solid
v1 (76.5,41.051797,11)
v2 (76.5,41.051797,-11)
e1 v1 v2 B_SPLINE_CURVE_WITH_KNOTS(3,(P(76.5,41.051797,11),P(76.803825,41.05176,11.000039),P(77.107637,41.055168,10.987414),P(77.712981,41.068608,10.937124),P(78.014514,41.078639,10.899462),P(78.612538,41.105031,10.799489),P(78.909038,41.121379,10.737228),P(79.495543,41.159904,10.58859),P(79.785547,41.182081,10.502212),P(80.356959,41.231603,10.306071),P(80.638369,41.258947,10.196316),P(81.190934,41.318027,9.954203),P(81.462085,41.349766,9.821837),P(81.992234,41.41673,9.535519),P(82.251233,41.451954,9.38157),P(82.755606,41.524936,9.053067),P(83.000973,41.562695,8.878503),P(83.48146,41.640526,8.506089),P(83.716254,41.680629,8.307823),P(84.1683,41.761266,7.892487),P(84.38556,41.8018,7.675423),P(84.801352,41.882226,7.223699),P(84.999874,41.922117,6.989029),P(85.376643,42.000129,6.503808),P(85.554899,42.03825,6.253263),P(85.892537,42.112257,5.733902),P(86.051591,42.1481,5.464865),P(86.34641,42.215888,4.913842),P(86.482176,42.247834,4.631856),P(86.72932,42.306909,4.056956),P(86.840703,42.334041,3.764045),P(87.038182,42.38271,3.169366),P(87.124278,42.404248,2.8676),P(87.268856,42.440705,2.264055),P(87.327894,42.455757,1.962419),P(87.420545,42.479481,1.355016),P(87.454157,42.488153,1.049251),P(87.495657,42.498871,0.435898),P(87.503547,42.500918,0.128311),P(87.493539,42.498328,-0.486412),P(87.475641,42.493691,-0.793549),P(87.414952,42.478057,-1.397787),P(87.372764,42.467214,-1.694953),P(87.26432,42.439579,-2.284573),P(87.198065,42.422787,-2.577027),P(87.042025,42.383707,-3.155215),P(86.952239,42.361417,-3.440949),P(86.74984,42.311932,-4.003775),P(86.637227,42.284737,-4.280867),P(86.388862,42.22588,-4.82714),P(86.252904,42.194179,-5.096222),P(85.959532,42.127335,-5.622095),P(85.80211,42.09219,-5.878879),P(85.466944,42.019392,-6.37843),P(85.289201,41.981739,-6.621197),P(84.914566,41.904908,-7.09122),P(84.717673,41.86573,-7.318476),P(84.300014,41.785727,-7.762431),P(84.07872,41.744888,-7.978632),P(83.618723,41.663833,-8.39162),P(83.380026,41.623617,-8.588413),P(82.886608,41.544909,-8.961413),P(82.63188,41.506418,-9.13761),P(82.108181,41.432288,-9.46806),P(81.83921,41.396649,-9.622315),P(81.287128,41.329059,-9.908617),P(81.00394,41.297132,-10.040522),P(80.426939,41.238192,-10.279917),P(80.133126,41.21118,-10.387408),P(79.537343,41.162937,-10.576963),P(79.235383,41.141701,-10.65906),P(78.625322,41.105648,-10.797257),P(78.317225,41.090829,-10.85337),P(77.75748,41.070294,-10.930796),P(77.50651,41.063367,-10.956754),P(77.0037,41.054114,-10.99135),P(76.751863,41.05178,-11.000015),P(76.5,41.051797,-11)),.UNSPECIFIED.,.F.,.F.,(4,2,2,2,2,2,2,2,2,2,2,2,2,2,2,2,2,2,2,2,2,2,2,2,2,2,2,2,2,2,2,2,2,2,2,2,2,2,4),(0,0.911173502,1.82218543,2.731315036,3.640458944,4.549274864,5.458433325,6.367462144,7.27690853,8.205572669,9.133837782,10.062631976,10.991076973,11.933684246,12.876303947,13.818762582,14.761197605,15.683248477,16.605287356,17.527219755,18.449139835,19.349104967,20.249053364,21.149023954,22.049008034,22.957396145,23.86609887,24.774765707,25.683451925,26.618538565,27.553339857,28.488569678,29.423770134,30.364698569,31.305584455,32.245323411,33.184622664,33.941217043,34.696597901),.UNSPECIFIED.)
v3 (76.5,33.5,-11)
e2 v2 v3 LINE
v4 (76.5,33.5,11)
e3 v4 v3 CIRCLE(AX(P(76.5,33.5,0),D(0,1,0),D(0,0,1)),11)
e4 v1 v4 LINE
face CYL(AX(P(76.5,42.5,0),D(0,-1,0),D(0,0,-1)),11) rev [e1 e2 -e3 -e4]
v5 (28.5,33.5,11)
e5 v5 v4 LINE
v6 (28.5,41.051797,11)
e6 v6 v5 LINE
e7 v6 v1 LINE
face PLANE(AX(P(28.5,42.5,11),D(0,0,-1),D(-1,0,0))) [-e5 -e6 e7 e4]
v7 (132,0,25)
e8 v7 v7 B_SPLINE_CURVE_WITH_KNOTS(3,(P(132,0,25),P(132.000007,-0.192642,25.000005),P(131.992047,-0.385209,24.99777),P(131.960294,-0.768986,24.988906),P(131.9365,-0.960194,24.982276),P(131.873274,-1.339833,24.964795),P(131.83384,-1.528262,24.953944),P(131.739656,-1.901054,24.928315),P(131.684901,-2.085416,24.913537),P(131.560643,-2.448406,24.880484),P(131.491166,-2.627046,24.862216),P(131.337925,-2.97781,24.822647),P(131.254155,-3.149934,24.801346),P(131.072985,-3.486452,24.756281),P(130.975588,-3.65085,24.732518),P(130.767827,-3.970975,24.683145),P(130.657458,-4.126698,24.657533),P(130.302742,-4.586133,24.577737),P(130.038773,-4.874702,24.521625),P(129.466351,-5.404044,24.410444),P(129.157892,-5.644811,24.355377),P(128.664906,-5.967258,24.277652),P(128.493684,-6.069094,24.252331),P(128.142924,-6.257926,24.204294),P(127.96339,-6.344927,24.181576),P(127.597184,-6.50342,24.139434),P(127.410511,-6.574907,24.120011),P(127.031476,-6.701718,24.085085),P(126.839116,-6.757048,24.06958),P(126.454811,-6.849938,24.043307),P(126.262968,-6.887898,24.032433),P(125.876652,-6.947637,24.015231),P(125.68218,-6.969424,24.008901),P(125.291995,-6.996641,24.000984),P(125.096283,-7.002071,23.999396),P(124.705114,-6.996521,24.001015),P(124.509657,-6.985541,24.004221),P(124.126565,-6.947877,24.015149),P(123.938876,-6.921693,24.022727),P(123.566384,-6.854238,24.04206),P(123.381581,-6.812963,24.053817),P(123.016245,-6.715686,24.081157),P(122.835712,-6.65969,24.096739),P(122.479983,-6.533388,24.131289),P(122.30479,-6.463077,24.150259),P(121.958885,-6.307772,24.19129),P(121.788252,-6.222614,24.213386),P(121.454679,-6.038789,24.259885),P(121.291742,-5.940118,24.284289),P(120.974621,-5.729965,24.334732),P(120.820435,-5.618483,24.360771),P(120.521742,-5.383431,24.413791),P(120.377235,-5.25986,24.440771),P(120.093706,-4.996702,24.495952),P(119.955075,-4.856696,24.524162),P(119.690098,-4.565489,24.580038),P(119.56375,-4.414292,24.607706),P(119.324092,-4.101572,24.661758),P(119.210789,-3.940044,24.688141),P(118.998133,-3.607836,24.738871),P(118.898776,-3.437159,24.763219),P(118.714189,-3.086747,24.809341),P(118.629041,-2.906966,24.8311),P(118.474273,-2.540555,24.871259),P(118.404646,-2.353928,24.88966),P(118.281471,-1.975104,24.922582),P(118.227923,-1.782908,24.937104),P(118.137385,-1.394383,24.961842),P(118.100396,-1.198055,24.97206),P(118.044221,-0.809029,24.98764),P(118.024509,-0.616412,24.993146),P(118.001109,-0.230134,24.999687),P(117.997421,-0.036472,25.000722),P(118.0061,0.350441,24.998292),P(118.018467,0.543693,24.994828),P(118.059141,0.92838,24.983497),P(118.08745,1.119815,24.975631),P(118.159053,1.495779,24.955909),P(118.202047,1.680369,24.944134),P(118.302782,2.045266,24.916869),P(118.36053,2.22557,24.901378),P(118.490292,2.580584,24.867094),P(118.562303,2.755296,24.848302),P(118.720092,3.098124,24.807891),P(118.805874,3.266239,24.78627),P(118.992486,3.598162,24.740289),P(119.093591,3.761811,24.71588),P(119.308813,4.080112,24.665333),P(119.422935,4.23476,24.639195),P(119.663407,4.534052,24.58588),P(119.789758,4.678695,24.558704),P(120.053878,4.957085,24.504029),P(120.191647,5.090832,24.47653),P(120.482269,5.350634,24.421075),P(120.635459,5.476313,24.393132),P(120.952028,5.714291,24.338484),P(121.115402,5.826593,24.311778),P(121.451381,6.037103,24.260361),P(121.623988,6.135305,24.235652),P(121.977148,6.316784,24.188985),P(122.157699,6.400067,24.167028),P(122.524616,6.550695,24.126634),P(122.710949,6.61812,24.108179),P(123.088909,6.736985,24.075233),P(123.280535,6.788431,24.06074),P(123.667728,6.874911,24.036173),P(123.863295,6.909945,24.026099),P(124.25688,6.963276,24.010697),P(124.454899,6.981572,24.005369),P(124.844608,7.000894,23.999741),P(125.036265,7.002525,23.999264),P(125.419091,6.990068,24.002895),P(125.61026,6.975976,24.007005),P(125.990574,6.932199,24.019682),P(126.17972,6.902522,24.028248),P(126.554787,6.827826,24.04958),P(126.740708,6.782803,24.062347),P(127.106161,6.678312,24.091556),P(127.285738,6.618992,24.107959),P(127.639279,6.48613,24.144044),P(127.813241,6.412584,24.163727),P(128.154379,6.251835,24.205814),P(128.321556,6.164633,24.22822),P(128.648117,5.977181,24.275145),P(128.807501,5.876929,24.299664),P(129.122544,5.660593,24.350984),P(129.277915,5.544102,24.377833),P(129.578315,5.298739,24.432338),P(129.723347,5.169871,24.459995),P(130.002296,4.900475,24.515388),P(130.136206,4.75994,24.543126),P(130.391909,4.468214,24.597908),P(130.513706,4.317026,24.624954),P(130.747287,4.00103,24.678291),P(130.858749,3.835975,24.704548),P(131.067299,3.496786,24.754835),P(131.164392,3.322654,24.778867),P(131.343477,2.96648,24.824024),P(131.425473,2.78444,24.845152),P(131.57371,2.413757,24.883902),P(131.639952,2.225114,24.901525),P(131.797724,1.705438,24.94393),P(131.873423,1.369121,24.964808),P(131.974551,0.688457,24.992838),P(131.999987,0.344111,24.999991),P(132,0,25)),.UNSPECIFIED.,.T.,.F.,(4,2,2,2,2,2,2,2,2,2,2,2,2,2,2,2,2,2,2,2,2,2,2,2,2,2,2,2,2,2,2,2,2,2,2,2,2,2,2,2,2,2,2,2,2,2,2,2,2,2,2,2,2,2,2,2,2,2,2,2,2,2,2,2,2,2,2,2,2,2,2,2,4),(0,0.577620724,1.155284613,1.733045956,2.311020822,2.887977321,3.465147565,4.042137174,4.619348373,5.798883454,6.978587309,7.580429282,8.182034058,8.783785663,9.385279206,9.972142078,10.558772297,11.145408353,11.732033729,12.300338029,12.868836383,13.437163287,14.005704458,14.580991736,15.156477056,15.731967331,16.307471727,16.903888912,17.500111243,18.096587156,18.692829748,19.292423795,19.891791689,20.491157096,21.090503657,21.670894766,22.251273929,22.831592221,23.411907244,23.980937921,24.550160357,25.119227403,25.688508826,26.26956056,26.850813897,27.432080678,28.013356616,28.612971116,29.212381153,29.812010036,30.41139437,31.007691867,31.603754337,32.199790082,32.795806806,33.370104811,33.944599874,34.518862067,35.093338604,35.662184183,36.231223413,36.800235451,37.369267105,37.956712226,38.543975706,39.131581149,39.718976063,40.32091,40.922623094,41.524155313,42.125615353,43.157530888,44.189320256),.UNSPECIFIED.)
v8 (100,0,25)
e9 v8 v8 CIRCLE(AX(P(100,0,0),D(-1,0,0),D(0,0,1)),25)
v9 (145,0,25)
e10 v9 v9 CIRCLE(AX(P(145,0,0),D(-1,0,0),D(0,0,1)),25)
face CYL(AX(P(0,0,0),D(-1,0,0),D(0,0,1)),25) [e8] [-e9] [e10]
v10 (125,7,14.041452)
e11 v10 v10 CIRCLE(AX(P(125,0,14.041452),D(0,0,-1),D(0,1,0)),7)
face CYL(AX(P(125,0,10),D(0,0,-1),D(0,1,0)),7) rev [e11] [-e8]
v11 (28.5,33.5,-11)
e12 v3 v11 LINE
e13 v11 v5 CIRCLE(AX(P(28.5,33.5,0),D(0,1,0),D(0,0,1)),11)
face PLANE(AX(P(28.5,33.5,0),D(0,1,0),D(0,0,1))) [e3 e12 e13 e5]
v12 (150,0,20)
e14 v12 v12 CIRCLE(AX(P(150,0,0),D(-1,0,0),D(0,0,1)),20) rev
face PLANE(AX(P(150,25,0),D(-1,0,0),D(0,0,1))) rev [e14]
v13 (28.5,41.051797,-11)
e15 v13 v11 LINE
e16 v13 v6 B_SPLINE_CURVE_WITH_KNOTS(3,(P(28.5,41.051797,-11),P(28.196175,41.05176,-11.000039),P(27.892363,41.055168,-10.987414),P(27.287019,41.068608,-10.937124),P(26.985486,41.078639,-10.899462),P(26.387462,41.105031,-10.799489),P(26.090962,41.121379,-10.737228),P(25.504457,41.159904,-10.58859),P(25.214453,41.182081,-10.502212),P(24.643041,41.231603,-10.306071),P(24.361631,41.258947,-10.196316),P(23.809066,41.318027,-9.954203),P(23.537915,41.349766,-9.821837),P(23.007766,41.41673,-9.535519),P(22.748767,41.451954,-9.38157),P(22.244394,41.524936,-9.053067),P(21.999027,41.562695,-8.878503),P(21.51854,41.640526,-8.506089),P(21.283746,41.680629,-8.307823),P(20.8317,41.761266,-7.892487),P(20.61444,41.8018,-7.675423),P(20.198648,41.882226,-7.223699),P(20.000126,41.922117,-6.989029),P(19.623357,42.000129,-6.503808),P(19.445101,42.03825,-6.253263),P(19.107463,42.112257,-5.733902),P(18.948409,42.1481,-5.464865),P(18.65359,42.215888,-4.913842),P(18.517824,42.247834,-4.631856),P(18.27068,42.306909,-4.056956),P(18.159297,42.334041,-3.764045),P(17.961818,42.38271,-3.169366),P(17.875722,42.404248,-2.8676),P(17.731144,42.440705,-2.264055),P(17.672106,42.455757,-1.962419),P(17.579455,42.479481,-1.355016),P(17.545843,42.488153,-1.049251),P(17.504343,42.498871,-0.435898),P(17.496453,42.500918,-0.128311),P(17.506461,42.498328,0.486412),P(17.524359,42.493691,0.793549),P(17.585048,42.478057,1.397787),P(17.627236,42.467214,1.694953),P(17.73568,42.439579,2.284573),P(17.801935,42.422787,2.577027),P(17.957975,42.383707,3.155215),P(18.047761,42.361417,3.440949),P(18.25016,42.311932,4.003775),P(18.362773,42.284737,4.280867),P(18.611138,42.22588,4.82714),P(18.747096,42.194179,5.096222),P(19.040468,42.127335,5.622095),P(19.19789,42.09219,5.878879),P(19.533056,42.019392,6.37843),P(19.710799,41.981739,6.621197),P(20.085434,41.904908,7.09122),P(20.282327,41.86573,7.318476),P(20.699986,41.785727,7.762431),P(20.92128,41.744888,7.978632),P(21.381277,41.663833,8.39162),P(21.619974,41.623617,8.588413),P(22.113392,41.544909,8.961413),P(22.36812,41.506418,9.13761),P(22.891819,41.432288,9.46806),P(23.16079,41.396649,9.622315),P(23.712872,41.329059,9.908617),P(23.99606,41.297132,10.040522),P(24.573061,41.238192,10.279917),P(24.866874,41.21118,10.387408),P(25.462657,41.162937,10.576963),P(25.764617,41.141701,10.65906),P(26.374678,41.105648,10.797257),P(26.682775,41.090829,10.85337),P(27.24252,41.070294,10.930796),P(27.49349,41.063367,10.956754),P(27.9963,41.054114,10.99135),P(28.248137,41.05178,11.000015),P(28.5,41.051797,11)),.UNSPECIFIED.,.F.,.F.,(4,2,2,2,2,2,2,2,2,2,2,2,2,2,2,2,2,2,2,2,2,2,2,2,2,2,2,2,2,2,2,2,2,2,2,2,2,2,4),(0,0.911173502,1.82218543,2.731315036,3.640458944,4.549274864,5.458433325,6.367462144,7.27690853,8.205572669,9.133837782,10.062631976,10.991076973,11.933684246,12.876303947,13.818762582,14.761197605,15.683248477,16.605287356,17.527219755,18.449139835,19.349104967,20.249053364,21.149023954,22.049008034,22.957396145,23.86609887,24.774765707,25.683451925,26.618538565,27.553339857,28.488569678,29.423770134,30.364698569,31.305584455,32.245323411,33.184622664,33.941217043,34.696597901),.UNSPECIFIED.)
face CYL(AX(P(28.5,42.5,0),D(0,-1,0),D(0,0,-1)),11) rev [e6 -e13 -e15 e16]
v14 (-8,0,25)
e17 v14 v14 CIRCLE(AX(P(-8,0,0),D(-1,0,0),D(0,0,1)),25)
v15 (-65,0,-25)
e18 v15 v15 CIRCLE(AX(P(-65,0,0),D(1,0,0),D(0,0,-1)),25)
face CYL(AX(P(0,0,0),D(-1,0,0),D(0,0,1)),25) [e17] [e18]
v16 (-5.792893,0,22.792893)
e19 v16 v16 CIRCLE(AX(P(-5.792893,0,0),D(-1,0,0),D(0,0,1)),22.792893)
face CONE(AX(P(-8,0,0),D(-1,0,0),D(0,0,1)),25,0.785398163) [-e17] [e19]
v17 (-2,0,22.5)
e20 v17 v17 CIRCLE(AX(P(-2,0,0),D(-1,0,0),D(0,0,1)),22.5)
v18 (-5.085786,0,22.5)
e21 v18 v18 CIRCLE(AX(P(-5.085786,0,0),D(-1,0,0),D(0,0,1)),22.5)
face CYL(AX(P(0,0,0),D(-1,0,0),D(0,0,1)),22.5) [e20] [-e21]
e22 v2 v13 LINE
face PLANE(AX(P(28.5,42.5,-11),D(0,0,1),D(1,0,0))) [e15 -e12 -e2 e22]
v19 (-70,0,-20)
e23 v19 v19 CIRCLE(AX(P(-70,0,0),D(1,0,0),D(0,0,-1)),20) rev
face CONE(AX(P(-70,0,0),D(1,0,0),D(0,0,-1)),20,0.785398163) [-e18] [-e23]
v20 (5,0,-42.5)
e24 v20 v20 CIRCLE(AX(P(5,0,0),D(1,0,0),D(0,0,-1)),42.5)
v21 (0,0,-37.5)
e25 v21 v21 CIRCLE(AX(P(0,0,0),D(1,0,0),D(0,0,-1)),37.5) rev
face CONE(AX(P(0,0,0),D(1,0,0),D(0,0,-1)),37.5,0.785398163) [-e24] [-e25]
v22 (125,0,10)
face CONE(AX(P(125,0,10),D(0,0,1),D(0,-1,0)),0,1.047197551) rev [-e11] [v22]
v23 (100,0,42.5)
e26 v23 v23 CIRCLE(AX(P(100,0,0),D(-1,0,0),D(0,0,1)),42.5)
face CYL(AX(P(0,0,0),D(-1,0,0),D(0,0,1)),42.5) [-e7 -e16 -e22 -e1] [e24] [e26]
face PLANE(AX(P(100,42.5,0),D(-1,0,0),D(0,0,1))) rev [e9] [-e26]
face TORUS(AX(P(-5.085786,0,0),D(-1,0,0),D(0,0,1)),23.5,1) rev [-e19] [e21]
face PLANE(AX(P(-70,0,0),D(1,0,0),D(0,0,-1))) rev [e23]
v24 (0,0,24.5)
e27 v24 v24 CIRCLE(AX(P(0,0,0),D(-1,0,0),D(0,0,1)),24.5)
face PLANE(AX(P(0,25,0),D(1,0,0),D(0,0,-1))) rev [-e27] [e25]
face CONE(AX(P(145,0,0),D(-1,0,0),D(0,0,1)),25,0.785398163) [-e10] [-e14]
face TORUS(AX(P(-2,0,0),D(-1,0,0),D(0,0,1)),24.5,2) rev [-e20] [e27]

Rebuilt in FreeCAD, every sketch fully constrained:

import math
import FreeCAD as App
import Part
import Sketcher

V = App.Vector
Q = App.Units.Quantity


def edges_at(feature, points):
    """Names of the edges that pass closest to the given points."""
    edges = feature.Shape.Edges
    near = lambda p: min(range(len(edges)), key=lambda i: edges[i].distToShape(Part.Vertex(*p))[0])
    return sorted({f"Edge{near(p) + 1}" for p in points})


def add_polygon(sketch, points):
    """Adds a closed chain of lines whose ends are joined by coincident constraints."""
    first, n = sketch.GeometryCount, len(points)
    for a, b in zip(points, points[1:] + points[:1]):
        sketch.addGeometry(Part.LineSegment(App.Vector(*a, 0), App.Vector(*b, 0)), False)
    for i in range(n):
        sketch.addConstraint(Sketcher.Constraint("Coincident", first + i, 2, first + (i + 1) % n, 1))

doc = App.newDocument("Part")
params = doc.addObject("Spreadsheet::Sheet", "Params")
for row, (alias, value) in enumerate([
    ("sketch1_width", "220 mm"),
    ("sketch1_width2", "50 mm"),
    ("sketch1_width3", "100 mm"),
    ("sketch1_height", "25 mm"),
    ("sketch1_height2", "17.5 mm"),
    ("revolution_angle", "360 deg"),
    ("chamfer_size", "5 mm"),
    ("sketch2_radius", "1 mm"),
    ("sketch2_radius2", "2 mm"),
    ("sketch2_width", "8 mm"),
    ("sketch2_height", "0.5 mm"),
    ("groove_angle", "360 deg"),
    ("sketch3_radius", "11 mm"),
    ("sketch3_width", "48 mm"),
    ("sketch4_width", "7 mm"),
    ("sketch4_height", "15 mm"),
    ("groove2_angle", "360 deg"),
], start=1):
    params.set(f"A{row}", alias)
    params.set(f"B{row}", "=" + value)
    params.setAlias(f"B{row}", alias)

body = doc.addObject("PartDesign::Body", "Body")

# Sketch on XY plane
sketch1 = doc.addObject("Sketcher::SketchObject", "Sketch")
body.addObject(sketch1)
sketch1.AttachmentSupport = (doc.XY_Plane, [""])
sketch1.MapMode = "FlatFace"
add_polygon(sketch1, [(-70, 25), (-70, 0), (150, 0), (150, 25), (100, 25), (100, 42.5), (0, 42.5), (0, 25)])  # lines 0-7
sketch1.addConstraint(Sketcher.Constraint("Vertical", 0))
sketch1.addConstraint(Sketcher.Constraint("Horizontal", 1))
sketch1.addConstraint(Sketcher.Constraint("Vertical", 2))
sketch1.addConstraint(Sketcher.Constraint("Horizontal", 3))
sketch1.addConstraint(Sketcher.Constraint("Vertical", 4))
sketch1.addConstraint(Sketcher.Constraint("Horizontal", 5))
sketch1.addConstraint(Sketcher.Constraint("Vertical", 6))
sketch1.addConstraint(Sketcher.Constraint("Horizontal", 7))
sketch1.addConstraint(Sketcher.Constraint("PointOnObject", 0, 2, -1))
sketch1.addConstraint(Sketcher.Constraint("PointOnObject", 5, 2, -2))
sketch1.addConstraint(Sketcher.Constraint("Horizontal", 3, 2, 6, 2))
sketch1.addConstraint(Sketcher.Constraint("DistanceX", 1, 1, 1, 2, 220.0))
sketch1.addConstraint(Sketcher.Constraint("DistanceX", 3, 2, 3, 1, 50.0))
sketch1.addConstraint(Sketcher.Constraint("DistanceX", 5, 2, 5, 1, 100.0))
sketch1.addConstraint(Sketcher.Constraint("DistanceY", 0, 2, 0, 1, 25.0))
sketch1.addConstraint(Sketcher.Constraint("DistanceY", 4, 1, 4, 2, 17.5))
sketch1.setExpression("Constraints[19]", "Params.sketch1_width")
sketch1.setExpression("Constraints[20]", "Params.sketch1_width2")
sketch1.setExpression("Constraints[21]", "Params.sketch1_width3")
sketch1.setExpression("Constraints[22]", "Params.sketch1_height")
sketch1.setExpression("Constraints[23]", "Params.sketch1_height2")
revolution = doc.addObject("PartDesign::Revolution", "Revolution")
body.addObject(revolution)
revolution.Profile = sketch1
revolution.ReferenceAxis = (sketch1, ["H_Axis"])
revolution.setExpression("Angle", "Params.revolution_angle")
doc.recompute()

chamfer = doc.addObject("PartDesign::Chamfer", "Chamfer")
body.addObject(chamfer)
chamfer.Base = (revolution, edges_at(revolution, [(150, 0, -25), (0, 0, -42.5), (-70, 0, -25)]))
chamfer.setExpression("Size", "Params.chamfer_size")

# Sketch on XY plane
sketch2 = doc.addObject("Sketcher::SketchObject", "Sketch001")
body.addObject(sketch2)
sketch2.AttachmentSupport = (doc.XY_Plane, [""])
sketch2.MapMode = "FlatFace"
sketch2.addGeometry(Part.LineSegment(V(0, 24.5, 0), V(0, 25, 0)), False)
sketch2.addGeometry(Part.LineSegment(V(0, 25, 0), V(-8, 25, 0)), False)
sketch2.addGeometry(Part.LineSegment(V(-8, 25, 0), V(-5.792893, 22.792893, 0)), False)
sketch2.addGeometry(Part.ArcOfCircle(Part.Circle(V(-5.085786, 23.5, 0), V(0, 0, 1), 1), math.radians(-135), math.radians(-90)), False)
sketch2.addGeometry(Part.LineSegment(V(-5.085786, 22.5, 0), V(-2, 22.5, 0)), False)
sketch2.addGeometry(Part.ArcOfCircle(Part.Circle(V(-2, 24.5, 0), V(0, 0, 1), 2), math.radians(-90), math.radians(0)), False)
sketch2.addConstraint(Sketcher.Constraint("Coincident", 0, 2, 1, 1))
sketch2.addConstraint(Sketcher.Constraint("Coincident", 1, 2, 2, 1))
sketch2.addConstraint(Sketcher.Constraint("Tangent", 2, 2, 3, 1))
sketch2.addConstraint(Sketcher.Constraint("Tangent", 3, 2, 4, 1))
sketch2.addConstraint(Sketcher.Constraint("Tangent", 4, 2, 5, 1))
sketch2.addConstraint(Sketcher.Constraint("Tangent", 5, 2, 0, 1))
sketch2.addConstraint(Sketcher.Constraint("Vertical", 0))
sketch2.addConstraint(Sketcher.Constraint("Horizontal", 1))
sketch2.addConstraint(Sketcher.Constraint("Horizontal", 4))
sketch2.addConstraint(Sketcher.Constraint("PointOnObject", 0, 2, -2))
sketch2.addConstraint(Sketcher.Constraint("Radius", 3, 1.0))
sketch2.addConstraint(Sketcher.Constraint("Radius", 5, 2.0))
sketch2.addConstraint(Sketcher.Constraint("DistanceX", 1, 2, 1, 1, 8.0))
sketch2.addConstraint(Sketcher.Constraint("Angle", 2, Q("-45 deg")))
sketch2.addConstraint(Sketcher.Constraint("DistanceY", 0, 1, 0, 2, 0.5))
sketch2.addConstraint(Sketcher.Constraint("DistanceY", -1, 1, 0, 2, 25.0))
sketch2.setExpression("Constraints[10]", "Params.sketch2_radius")
sketch2.setExpression("Constraints[11]", "Params.sketch2_radius2")
sketch2.setExpression("Constraints[12]", "Params.sketch2_width")
sketch2.setExpression("Constraints[14]", "Params.sketch2_height")
groove = doc.addObject("PartDesign::Groove", "Groove")
body.addObject(groove)
groove.Profile = sketch2
groove.ReferenceAxis = (sketch2, ["H_Axis"])
groove.setExpression("Angle", "Params.groove_angle")

# Sketch on XZ plane
sketch3 = doc.addObject("Sketcher::SketchObject", "Sketch002")
body.addObject(sketch3)
sketch3.AttachmentSupport = (doc.XZ_Plane, [""])
sketch3.MapMode = "FlatFace"
sketch3.AttachmentOffset = App.Placement(V(0, 0, -33.5), App.Rotation())
sketch3.addGeometry(Part.LineSegment(V(76.5, -11, 0), V(28.5, -11, 0)), False)
sketch3.addGeometry(Part.ArcOfCircle(Part.Circle(V(28.5, 0, 0), V(0, 0, 1), 11), math.radians(90), math.radians(270)), False)
sketch3.addGeometry(Part.LineSegment(V(28.5, 11, 0), V(76.5, 11, 0)), False)
sketch3.addGeometry(Part.ArcOfCircle(Part.Circle(V(76.5, 0, 0), V(0, 0, 1), 11), math.radians(-90), math.radians(90)), False)
sketch3.addConstraint(Sketcher.Constraint("Tangent", 0, 2, 1, 2))
sketch3.addConstraint(Sketcher.Constraint("Tangent", 1, 1, 2, 1))
sketch3.addConstraint(Sketcher.Constraint("Tangent", 2, 2, 3, 2))
sketch3.addConstraint(Sketcher.Constraint("Tangent", 3, 1, 0, 1))
sketch3.addConstraint(Sketcher.Constraint("Horizontal", 0))
sketch3.addConstraint(Sketcher.Constraint("Horizontal", 2))
sketch3.addConstraint(Sketcher.Constraint("PointOnObject", 1, 3, -1))
sketch3.addConstraint(Sketcher.Constraint("Radius", 1, 11.0))
sketch3.addConstraint(Sketcher.Constraint("DistanceX", 0, 2, 0, 1, 48.0))
sketch3.addConstraint(Sketcher.Constraint("DistanceX", -1, 1, 1, 3, 28.5))
sketch3.setExpression("Constraints[7]", "Params.sketch3_radius")
sketch3.setExpression("Constraints[8]", "Params.sketch3_width")
pocket1 = doc.addObject("PartDesign::Pocket", "Pocket")
body.addObject(pocket1)
pocket1.Profile = sketch3
pocket1.Type = "ThroughAll"

# Sketch on YZ plane
sketch4 = doc.addObject("Sketcher::SketchObject", "Sketch003")
body.addObject(sketch4)
sketch4.AttachmentSupport = (doc.YZ_Plane, [""])
sketch4.MapMode = "FlatFace"
sketch4.AttachmentOffset = App.Placement(V(0, 0, 125), App.Rotation())
add_polygon(sketch4, [(0, 10), (7, 14.041452), (7, 25), (0, 25)])  # lines 0-3
sketch4.addConstraint(Sketcher.Constraint("Vertical", 1))
sketch4.addConstraint(Sketcher.Constraint("Horizontal", 2))
sketch4.addConstraint(Sketcher.Constraint("Vertical", 3))
sketch4.addConstraint(Sketcher.Constraint("PointOnObject", 2, 2, -2))
sketch4.addConstraint(Sketcher.Constraint("DistanceX", 2, 2, 2, 1, 7.0))
sketch4.addConstraint(Sketcher.Constraint("DistanceY", 3, 2, 3, 1, 15.0))
sketch4.addConstraint(Sketcher.Constraint("Angle", 0, Q("30 deg")))
sketch4.addConstraint(Sketcher.Constraint("DistanceY", -1, 1, 1, 2, 25.0))
sketch4.setExpression("Constraints[8]", "Params.sketch4_width")
sketch4.setExpression("Constraints[9]", "Params.sketch4_height")
groove2 = doc.addObject("PartDesign::Groove", "Groove001")
body.addObject(groove2)
groove2.Profile = sketch4
groove2.ReferenceAxis = (sketch4, ["V_Axis"])
groove2.setExpression("Angle", "Params.groove2_angle")

doc.recompute()
